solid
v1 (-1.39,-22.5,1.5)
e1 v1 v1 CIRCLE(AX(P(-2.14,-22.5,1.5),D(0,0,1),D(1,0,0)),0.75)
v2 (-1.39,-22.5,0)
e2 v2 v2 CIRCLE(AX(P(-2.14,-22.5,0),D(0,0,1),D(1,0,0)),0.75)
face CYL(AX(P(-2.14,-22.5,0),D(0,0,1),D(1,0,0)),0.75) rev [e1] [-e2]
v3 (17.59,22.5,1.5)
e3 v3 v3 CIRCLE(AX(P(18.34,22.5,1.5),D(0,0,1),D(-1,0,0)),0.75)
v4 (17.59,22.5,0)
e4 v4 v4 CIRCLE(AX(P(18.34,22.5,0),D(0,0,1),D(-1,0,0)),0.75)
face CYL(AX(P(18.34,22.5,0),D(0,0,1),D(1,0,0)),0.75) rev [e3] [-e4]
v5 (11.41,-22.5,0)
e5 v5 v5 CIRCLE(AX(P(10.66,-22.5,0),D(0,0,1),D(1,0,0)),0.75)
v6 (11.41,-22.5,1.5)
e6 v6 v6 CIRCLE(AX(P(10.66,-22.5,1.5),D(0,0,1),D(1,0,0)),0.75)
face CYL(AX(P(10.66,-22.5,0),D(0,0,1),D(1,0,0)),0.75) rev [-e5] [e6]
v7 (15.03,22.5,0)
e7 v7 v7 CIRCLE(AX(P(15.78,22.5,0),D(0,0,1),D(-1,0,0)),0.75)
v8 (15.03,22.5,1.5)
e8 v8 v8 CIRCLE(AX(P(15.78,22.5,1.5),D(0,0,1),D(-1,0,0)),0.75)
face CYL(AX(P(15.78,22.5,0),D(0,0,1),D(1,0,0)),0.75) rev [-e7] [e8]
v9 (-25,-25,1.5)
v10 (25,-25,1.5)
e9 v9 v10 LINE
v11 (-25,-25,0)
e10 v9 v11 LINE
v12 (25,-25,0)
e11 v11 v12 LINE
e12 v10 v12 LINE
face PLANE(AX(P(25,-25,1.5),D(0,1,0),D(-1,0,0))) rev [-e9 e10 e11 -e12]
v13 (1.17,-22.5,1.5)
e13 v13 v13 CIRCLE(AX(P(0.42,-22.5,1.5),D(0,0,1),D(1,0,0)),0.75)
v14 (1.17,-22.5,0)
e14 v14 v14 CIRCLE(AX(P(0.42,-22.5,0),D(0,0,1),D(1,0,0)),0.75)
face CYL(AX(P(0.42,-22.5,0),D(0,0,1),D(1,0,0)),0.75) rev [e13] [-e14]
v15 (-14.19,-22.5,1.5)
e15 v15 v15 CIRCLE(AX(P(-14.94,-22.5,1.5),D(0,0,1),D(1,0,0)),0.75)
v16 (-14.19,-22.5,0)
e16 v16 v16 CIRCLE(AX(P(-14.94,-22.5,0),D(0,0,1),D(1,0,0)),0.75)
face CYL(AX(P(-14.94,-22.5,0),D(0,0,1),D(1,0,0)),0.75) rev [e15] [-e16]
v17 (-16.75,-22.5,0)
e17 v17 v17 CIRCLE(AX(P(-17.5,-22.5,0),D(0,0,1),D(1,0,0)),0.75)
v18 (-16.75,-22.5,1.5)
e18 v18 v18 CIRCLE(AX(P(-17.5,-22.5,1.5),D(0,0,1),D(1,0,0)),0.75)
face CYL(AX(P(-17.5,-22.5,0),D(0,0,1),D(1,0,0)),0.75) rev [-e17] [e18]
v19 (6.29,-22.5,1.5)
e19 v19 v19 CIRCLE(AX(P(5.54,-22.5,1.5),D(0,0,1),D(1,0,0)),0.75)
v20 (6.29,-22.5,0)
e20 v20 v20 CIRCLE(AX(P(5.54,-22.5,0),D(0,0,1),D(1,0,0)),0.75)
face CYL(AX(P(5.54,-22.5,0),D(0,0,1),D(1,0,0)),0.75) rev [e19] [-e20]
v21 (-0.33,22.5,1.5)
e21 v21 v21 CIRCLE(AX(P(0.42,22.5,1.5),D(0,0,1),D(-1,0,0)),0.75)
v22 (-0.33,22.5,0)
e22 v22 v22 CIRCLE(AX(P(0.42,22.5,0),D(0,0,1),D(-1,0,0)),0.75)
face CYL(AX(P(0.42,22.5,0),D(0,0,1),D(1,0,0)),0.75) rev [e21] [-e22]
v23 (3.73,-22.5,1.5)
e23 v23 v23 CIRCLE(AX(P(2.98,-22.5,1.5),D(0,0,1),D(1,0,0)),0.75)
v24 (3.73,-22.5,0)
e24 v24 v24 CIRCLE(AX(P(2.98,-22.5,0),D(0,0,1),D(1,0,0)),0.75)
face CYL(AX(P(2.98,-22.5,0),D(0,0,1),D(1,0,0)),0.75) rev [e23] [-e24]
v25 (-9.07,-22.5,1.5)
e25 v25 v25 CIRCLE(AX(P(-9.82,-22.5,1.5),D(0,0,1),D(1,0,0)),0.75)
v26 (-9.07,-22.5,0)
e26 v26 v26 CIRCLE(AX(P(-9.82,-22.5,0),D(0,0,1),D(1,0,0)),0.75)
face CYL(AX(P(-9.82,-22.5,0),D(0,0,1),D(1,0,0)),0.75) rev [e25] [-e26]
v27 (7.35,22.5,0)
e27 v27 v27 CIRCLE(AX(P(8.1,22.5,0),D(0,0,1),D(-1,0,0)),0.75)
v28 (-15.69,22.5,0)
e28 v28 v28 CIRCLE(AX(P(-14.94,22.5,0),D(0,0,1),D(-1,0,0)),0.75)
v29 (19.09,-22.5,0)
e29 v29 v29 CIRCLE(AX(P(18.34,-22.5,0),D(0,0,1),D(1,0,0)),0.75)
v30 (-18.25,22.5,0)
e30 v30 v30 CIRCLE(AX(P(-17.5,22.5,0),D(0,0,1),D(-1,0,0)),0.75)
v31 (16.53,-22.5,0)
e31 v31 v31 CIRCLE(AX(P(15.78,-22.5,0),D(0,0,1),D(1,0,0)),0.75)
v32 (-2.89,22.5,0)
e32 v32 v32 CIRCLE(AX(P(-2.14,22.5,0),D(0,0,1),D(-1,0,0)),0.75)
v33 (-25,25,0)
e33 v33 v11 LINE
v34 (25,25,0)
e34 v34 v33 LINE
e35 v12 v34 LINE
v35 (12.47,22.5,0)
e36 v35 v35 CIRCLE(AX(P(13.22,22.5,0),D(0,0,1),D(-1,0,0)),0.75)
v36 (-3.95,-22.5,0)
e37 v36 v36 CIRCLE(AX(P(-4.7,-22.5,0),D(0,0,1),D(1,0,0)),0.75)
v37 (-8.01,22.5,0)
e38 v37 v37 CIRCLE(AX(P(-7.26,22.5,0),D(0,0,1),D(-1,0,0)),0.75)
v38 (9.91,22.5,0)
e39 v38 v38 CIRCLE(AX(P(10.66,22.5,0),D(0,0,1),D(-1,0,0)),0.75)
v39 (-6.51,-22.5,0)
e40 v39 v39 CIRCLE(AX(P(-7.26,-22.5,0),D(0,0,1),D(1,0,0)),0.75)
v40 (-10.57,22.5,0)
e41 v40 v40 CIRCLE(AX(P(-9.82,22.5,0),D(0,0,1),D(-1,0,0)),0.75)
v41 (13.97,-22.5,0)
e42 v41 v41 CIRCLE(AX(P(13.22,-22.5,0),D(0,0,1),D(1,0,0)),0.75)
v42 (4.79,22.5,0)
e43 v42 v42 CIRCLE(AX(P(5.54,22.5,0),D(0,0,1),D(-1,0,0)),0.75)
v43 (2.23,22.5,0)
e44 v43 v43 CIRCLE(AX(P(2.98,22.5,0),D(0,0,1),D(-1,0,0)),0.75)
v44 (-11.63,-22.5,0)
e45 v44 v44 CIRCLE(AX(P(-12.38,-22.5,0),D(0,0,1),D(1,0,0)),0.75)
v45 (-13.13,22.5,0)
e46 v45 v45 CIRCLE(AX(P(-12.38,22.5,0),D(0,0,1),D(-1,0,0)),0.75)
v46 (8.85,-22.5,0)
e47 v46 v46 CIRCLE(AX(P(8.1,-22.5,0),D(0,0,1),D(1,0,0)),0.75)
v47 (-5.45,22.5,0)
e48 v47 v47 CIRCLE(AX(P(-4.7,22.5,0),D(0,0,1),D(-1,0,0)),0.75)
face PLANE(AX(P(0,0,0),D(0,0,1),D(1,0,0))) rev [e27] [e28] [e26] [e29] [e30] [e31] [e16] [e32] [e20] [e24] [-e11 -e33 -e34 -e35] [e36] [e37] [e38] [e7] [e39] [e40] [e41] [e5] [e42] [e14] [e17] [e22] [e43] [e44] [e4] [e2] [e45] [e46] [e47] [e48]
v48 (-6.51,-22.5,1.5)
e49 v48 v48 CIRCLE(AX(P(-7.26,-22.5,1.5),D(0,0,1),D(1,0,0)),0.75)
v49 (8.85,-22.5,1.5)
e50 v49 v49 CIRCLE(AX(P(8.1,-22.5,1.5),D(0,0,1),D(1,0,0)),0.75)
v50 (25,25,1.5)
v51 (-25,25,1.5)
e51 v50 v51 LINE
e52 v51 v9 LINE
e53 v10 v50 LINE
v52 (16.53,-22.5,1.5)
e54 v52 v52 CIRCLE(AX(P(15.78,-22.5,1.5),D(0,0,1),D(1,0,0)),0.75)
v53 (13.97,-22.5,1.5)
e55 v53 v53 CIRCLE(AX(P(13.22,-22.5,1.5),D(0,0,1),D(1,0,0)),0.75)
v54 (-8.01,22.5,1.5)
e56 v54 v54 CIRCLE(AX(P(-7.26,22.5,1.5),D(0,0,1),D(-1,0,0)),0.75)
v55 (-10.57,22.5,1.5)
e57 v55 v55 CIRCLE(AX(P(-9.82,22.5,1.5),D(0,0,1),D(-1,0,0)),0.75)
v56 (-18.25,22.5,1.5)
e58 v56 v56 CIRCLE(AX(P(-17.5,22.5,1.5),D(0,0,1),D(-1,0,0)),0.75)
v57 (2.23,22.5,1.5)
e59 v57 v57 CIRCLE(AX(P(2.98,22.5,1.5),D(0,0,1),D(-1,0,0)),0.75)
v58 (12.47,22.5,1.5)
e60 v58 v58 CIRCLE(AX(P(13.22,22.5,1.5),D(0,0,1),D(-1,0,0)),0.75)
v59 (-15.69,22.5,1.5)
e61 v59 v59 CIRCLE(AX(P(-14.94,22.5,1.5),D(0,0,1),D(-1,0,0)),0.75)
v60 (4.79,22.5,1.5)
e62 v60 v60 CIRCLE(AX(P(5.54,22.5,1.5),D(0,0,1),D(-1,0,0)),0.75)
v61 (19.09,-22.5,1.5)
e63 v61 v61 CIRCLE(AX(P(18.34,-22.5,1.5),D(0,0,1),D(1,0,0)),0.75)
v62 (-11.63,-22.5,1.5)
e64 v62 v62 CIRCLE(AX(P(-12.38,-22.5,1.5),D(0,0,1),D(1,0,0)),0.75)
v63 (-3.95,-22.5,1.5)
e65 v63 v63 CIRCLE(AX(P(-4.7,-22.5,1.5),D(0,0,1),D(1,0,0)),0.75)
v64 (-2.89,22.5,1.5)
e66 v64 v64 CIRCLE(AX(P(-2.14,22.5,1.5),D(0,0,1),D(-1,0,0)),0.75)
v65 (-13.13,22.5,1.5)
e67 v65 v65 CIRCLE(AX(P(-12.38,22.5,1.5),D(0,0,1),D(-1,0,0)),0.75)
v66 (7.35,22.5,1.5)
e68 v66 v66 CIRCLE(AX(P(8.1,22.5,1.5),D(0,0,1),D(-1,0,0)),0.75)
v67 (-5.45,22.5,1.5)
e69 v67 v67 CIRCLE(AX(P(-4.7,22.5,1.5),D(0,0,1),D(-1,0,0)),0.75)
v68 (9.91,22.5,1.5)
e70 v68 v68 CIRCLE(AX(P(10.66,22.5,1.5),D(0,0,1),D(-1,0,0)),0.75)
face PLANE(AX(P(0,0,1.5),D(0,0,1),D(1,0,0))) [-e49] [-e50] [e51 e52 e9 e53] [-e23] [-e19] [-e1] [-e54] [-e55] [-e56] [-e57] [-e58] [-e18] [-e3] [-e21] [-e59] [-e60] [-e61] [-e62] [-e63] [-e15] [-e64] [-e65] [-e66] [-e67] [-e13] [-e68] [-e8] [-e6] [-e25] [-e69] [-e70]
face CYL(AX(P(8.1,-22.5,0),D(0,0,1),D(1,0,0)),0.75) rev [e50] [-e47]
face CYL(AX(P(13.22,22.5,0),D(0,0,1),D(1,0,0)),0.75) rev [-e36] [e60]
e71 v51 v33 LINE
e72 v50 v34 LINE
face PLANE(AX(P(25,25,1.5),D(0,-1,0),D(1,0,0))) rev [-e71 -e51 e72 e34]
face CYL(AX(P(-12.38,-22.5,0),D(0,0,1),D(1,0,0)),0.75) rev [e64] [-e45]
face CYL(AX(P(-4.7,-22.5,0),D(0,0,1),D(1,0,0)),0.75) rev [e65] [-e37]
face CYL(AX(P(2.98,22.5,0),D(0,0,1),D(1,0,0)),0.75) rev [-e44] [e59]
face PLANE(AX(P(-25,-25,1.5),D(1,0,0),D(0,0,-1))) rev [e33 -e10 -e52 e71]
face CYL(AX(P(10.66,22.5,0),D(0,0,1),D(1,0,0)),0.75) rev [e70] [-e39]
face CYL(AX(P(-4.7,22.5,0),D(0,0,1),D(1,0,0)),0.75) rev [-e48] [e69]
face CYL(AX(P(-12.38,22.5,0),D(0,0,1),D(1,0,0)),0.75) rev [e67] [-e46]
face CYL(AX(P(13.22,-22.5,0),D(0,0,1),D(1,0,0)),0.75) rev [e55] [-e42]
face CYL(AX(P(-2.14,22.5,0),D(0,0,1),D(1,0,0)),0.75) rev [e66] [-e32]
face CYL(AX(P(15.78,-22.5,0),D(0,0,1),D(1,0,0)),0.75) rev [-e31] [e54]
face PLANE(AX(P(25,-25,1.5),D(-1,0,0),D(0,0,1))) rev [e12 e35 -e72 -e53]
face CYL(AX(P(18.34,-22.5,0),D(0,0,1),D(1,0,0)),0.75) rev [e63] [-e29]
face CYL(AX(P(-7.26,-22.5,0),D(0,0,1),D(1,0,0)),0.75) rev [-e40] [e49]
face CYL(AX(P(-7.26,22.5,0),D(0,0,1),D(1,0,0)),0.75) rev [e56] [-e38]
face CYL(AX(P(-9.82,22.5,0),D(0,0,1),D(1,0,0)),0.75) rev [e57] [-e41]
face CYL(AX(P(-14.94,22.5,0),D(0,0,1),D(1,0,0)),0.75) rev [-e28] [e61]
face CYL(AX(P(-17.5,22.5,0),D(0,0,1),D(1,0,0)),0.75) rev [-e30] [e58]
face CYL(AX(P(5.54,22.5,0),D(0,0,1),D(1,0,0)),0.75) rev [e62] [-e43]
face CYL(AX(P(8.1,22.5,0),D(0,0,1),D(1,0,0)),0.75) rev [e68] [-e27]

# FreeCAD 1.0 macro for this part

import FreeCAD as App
import Part
import Sketcher

doc = App.newDocument("Part")
body = doc.addObject("PartDesign::Body", "Body")

sketch1 = body.newObject("Sketcher::SketchObject", "Sketch")
sketch1.AttachmentSupport = (doc.getObject("XY_Plane"), [""])
sketch1.MapMode = "FlatFace"
sketch1.addGeometry(Part.LineSegment(App.Vector(-25, 25, 0), App.Vector(-25, -25, 0)), False)
sketch1.addGeometry(Part.LineSegment(App.Vector(-25, -25, 0), App.Vector(25, -25, 0)), False)
sketch1.addGeometry(Part.LineSegment(App.Vector(25, -25, 0), App.Vector(25, 25, 0)), False)
sketch1.addGeometry(Part.LineSegment(App.Vector(25, 25, 0), App.Vector(-25, 25, 0)), False)
sketch1.addConstraint(Sketcher.Constraint("Coincident", 0, 2, 1, 1))
sketch1.addConstraint(Sketcher.Constraint("Coincident", 1, 2, 2, 1))
sketch1.addConstraint(Sketcher.Constraint("Coincident", 2, 2, 3, 1))
sketch1.addConstraint(Sketcher.Constraint("Coincident", 3, 2, 0, 1))
sketch1.addConstraint(Sketcher.Constraint("Vertical", 0))
sketch1.addConstraint(Sketcher.Constraint("Horizontal", 1))
sketch1.addConstraint(Sketcher.Constraint("Vertical", 2))
sketch1.addConstraint(Sketcher.Constraint("Horizontal", 3))
sketch1.addConstraint(Sketcher.Constraint("Symmetric", 0, 2, 2, 2, -1, 1))
sketch1.addConstraint(Sketcher.Constraint("Equal", 3, 0))
sketch1.addConstraint(Sketcher.Constraint("DistanceX", 1, 1, 1, 2, 50.0))
pad1 = body.newObject("PartDesign::Pad", "Pad")
pad1.Profile = sketch1
pad1.Length = 1.5

sketch2 = body.newObject("Sketcher::SketchObject", "Sketch001")
sketch2.AttachmentSupport = (doc.getObject("XY_Plane"), [""])
sketch2.MapMode = "FlatFace"
sketch2.AttachmentOffset = App.Placement(App.Vector(0, 0, 1.5), App.Rotation())
sketch2.addGeometry(Part.Circle(App.Vector(-17.5, -22.5, 0), App.Vector(0, 0, 1), 0.8), False)
sketch2.addGeometry(Part.Circle(App.Vector(-14.9, -22.5, 0), App.Vector(0, 0, 1), 0.8), False)
sketch2.addGeometry(Part.Circle(App.Vector(-12.4, -22.5, 0), App.Vector(0, 0, 1), 0.8), False)
sketch2.addGeometry(Part.Circle(App.Vector(-9.8, -22.5, 0), App.Vector(0, 0, 1), 0.8), False)
sketch2.addGeometry(Part.Circle(App.Vector(-7.3, -22.5, 0), App.Vector(0, 0, 1), 0.8), False)
sketch2.addGeometry(Part.Circle(App.Vector(-4.7, -22.5, 0), App.Vector(0, 0, 1), 0.8), False)
sketch2.addGeometry(Part.Circle(App.Vector(-2.1, -22.5, 0), App.Vector(0, 0, 1), 0.8), False)
sketch2.addGeometry(Part.Circle(App.Vector(0.4, -22.5, 0), App.Vector(0, 0, 1), 0.8), False)
sketch2.addGeometry(Part.Circle(App.Vector(3, -22.5, 0), App.Vector(0, 0, 1), 0.8), False)
sketch2.addGeometry(Part.Circle(App.Vector(5.5, -22.5, 0), App.Vector(0, 0, 1), 0.8), False)
sketch2.addGeometry(Part.Circle(App.Vector(8.1, -22.5, 0), App.Vector(0, 0, 1), 0.8), False)
sketch2.addGeometry(Part.Circle(App.Vector(10.7, -22.5, 0), App.Vector(0, 0, 1), 0.8), False)
sketch2.addGeometry(Part.Circle(App.Vector(13.2, -22.5, 0), App.Vector(0, 0, 1), 0.8), False)
sketch2.addGeometry(Part.Circle(App.Vector(15.8, -22.5, 0), App.Vector(0, 0, 1), 0.8), False)
sketch2.addGeometry(Part.Circle(App.Vector(18.3, -22.5, 0), App.Vector(0, 0, 1), 0.8), False)
sketch2.addGeometry(Part.Circle(App.Vector(18.3, 22.5, 0), App.Vector(0, 0, 1), 0.8), False)
sketch2.addGeometry(Part.Circle(App.Vector(15.8, 22.5, 0), App.Vector(0, 0, 1), 0.8), False)
sketch2.addGeometry(Part.Circle(App.Vector(13.2, 22.5, 0), App.Vector(0, 0, 1), 0.8), False)
sketch2.addGeometry(Part.Circle(App.Vector(10.7, 22.5, 0), App.Vector(0, 0, 1), 0.8), False)
sketch2.addGeometry(Part.Circle(App.Vector(8.1, 22.5, 0), App.Vector(0, 0, 1), 0.8), False)
sketch2.addGeometry(Part.Circle(App.Vector(5.5, 22.5, 0), App.Vector(0, 0, 1), 0.8), False)
sketch2.addGeometry(Part.Circle(App.Vector(3, 22.5, 0), App.Vector(0, 0, 1), 0.8), False)
sketch2.addGeometry(Part.Circle(App.Vector(0.4, 22.5, 0), App.Vector(0, 0, 1), 0.8), False)
sketch2.addGeometry(Part.Circle(App.Vector(-2.1, 22.5, 0), App.Vector(0, 0, 1), 0.8), False)
sketch2.addGeometry(Part.Circle(App.Vector(-4.7, 22.5, 0), App.Vector(0, 0, 1), 0.8), False)
sketch2.addGeometry(Part.Circle(App.Vector(-7.3, 22.5, 0), App.Vector(0, 0, 1), 0.8), False)
sketch2.addGeometry(Part.Circle(App.Vector(-9.8, 22.5, 0), App.Vector(0, 0, 1), 0.8), False)
sketch2.addGeometry(Part.Circle(App.Vector(-12.4, 22.5, 0), App.Vector(0, 0, 1), 0.8), False)
sketch2.addGeometry(Part.Circle(App.Vector(-14.9, 22.5, 0), App.Vector(0, 0, 1), 0.8), False)
sketch2.addGeometry(Part.Circle(App.Vector(-17.5, 22.5, 0), App.Vector(0, 0, 1), 0.8), False)
sketch2.addConstraint(Sketcher.Constraint("Equal", 0, 1))
sketch2.addConstraint(Sketcher.Constraint("Equal", 1, 2))
sketch2.addConstraint(Sketcher.Constraint("Equal", 2, 3))
sketch2.addConstraint(Sketcher.Constraint("Equal", 3, 4))
sketch2.addConstraint(Sketcher.Constraint("Equal", 4, 5))
sketch2.addConstraint(Sketcher.Constraint("Equal", 5, 6))
sketch2.addConstraint(Sketcher.Constraint("Equal", 6, 7))
sketch2.addConstraint(Sketcher.Constraint("Equal", 7, 8))
sketch2.addConstraint(Sketcher.Constraint("Equal", 8, 9))
sketch2.addConstraint(Sketcher.Constraint("Equal", 9, 10))
sketch2.addConstraint(Sketcher.Constraint("Equal", 10, 11))
sketch2.addConstraint(Sketcher.Constraint("Equal", 11, 12))
sketch2.addConstraint(Sketcher.Constraint("Equal", 12, 13))
sketch2.addConstraint(Sketcher.Constraint("Equal", 13, 14))
sketch2.addConstraint(Sketcher.Constraint("Equal", 14, 15))
sketch2.addConstraint(Sketcher.Constraint("Equal", 15, 16))
sketch2.addConstraint(Sketcher.Constraint("Equal", 16, 17))
sketch2.addConstraint(Sketcher.Constraint("Equal", 17, 18))
sketch2.addConstraint(Sketcher.Constraint("Equal", 18, 19))
sketch2.addConstraint(Sketcher.Constraint("Equal", 19, 20))
sketch2.addConstraint(Sketcher.Constraint("Equal", 20, 21))
sketch2.addConstraint(Sketcher.Constraint("Equal", 21, 22))
sketch2.addConstraint(Sketcher.Constraint("Equal", 22, 23))
sketch2.addConstraint(Sketcher.Constraint("Equal", 23, 24))
sketch2.addConstraint(Sketcher.Constraint("Equal", 24, 25))
sketch2.addConstraint(Sketcher.Constraint("Equal", 25, 26))
sketch2.addConstraint(Sketcher.Constraint("Equal", 26, 27))
sketch2.addConstraint(Sketcher.Constraint("Equal", 27, 28))
sketch2.addConstraint(Sketcher.Constraint("Equal", 28, 29))
sketch2.addConstraint(Sketcher.Constraint("Symmetric", 14, 3, 15, 3, -1))
sketch2.addConstraint(Sketcher.Constraint("Symmetric", 13, 3, 16, 3, -1))
sketch2.addConstraint(Sketcher.Constraint("Symmetric", 12, 3, 17, 3, -1))
sketch2.addConstraint(Sketcher.Constraint("Symmetric", 11, 3, 18, 3, -1))
sketch2.addConstraint(Sketcher.Constraint("Symmetric", 10, 3, 19, 3, -1))
sketch2.addConstraint(Sketcher.Constraint("Symmetric", 9, 3, 20, 3, -1))
sketch2.addConstraint(Sketcher.Constraint("Symmetric", 8, 3, 21, 3, -1))
sketch2.addConstraint(Sketcher.Constraint("Symmetric", 7, 3, 22, 3, -1))
sketch2.addConstraint(Sketcher.Constraint("Symmetric", 6, 3, 23, 3, -1))
sketch2.addConstraint(Sketcher.Constraint("Symmetric", 5, 3, 24, 3, -1))
sketch2.addConstraint(Sketcher.Constraint("Symmetric", 4, 3, 25, 3, -1))
sketch2.addConstraint(Sketcher.Constraint("Symmetric", 3, 3, 26, 3, -1))
sketch2.addConstraint(Sketcher.Constraint("Symmetric", 2, 3, 27, 3, -1))
sketch2.addConstraint(Sketcher.Constraint("Symmetric", 1, 3, 28, 3, -1))
sketch2.addConstraint(Sketcher.Constraint("Symmetric", 0, 3, 29, 3, -1))
sketch2.addConstraint(Sketcher.Constraint("Horizontal", 0, 3, 1, 3))
sketch2.addConstraint(Sketcher.Constraint("Horizontal", 1, 3, 2, 3))
sketch2.addConstraint(Sketcher.Constraint("Horizontal", 2, 3, 3, 3))
sketch2.addConstraint(Sketcher.Constraint("Horizontal", 3, 3, 4, 3))
sketch2.addConstraint(Sketcher.Constraint("Horizontal", 4, 3, 5, 3))
sketch2.addConstraint(Sketcher.Constraint("Horizontal", 5, 3, 6, 3))
sketch2.addConstraint(Sketcher.Constraint("Horizontal", 6, 3, 7, 3))
sketch2.addConstraint(Sketcher.Constraint("Horizontal", 7, 3, 8, 3))
sketch2.addConstraint(Sketcher.Constraint("Horizontal", 8, 3, 9, 3))
sketch2.addConstraint(Sketcher.Constraint("Horizontal", 9, 3, 10, 3))
sketch2.addConstraint(Sketcher.Constraint("Horizontal", 10, 3, 11, 3))
sketch2.addConstraint(Sketcher.Constraint("Horizontal", 11, 3, 12, 3))
sketch2.addConstraint(Sketcher.Constraint("Horizontal", 12, 3, 13, 3))
sketch2.addConstraint(Sketcher.Constraint("Horizontal", 13, 3, 14, 3))
sketch2.addConstraint(Sketcher.Constraint("Diameter", 0, 1.5))
sketch2.addConstraint(Sketcher.Constraint("DistanceY", 14, 3, 15, 3, 45.0))
sketch2.addConstraint(Sketcher.Constraint("DistanceX", 0, 3, -1, 1, 17.5))
sketch2.addConstraint(Sketcher.Constraint("DistanceX", 5, 3, -1, 1, 4.7))
sketch2.addConstraint(Sketcher.Constraint("DistanceX", -1, 1, 10, 3, 8.1))
sketch2.addConstraint(Sketcher.Constraint("DistanceX", 1, 3, 6, 3, 12.8))
sketch2.addConstraint(Sketcher.Constraint("DistanceX", 2, 3, 7, 3, 12.8))
sketch2.addConstraint(Sketcher.Constraint("DistanceX", 3, 3, 8, 3, 12.8))
sketch2.addConstraint(Sketcher.Constraint("DistanceX", 4, 3, 9, 3, 12.8))
sketch2.addConstraint(Sketcher.Constraint("DistanceX", 6, 3, 11, 3, 12.8))
sketch2.addConstraint(Sketcher.Constraint("DistanceX", 7, 3, 12, 3, 12.8))
sketch2.addConstraint(Sketcher.Constraint("DistanceX", 8, 3, 13, 3, 12.8))
sketch2.addConstraint(Sketcher.Constraint("DistanceX", 9, 3, 14, 3, 12.8))
sketch2.addConstraint(Sketcher.Constraint("DistanceX", 1, 3, -1, 1, 14.94))
sketch2.addConstraint(Sketcher.Constraint("DistanceX", 2, 3, -1, 1, 12.38))
sketch2.addConstraint(Sketcher.Constraint("DistanceX", 3, 3, -1, 1, 9.82))
sketch2.addConstraint(Sketcher.Constraint("DistanceX", 4, 3, -1, 1, 7.26))
pocket1 = body.newObject("PartDesign::Pocket", "Pocket")
pocket1.Profile = sketch2
pocket1.Type = "ThroughAll"

doc.recompute()
